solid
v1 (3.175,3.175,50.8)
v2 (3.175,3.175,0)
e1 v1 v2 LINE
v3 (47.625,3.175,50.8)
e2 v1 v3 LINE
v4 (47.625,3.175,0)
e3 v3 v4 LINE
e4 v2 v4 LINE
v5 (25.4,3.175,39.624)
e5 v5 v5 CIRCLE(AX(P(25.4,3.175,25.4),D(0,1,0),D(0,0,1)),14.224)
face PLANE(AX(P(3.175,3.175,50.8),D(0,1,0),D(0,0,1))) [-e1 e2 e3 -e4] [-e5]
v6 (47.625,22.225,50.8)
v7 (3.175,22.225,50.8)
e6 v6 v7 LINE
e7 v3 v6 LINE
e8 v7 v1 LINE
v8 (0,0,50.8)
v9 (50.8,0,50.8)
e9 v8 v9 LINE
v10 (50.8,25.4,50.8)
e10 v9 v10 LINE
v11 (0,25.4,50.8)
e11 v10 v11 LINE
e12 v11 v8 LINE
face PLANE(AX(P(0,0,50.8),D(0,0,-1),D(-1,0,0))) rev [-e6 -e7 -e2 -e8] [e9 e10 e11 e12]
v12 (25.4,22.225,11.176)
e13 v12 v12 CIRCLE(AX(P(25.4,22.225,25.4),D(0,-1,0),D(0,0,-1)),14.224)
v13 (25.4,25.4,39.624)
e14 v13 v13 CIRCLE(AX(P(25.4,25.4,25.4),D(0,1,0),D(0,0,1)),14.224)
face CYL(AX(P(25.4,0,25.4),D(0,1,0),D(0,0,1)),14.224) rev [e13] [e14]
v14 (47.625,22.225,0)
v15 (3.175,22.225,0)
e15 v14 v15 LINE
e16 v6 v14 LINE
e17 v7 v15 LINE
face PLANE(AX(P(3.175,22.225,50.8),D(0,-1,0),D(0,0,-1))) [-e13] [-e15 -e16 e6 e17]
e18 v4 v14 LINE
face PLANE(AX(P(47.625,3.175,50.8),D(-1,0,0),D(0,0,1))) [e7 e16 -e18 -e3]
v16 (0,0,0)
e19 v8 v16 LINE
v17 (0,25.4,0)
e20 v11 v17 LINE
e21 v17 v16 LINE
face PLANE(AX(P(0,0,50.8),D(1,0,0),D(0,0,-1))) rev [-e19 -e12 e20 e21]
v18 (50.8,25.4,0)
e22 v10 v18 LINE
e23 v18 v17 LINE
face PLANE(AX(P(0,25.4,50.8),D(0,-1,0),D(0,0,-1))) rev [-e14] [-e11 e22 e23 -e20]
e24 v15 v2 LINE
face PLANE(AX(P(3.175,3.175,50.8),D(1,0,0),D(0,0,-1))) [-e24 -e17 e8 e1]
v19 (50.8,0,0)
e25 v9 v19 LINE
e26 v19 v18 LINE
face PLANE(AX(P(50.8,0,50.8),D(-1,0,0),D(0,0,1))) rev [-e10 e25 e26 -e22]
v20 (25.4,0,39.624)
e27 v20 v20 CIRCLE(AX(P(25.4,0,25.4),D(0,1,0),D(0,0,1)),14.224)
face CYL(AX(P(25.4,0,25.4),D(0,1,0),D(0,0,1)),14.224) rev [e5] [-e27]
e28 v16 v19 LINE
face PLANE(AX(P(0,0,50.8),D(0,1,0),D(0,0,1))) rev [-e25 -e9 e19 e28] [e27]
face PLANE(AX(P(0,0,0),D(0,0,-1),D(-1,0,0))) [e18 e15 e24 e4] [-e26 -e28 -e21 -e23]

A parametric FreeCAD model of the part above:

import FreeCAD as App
import Part
import Sketcher
Q = App.Units.Quantity


def add_polygon(sketch, points):
    """Adds a closed chain of lines whose ends are joined by coincident constraints."""
    first, n = sketch.GeometryCount, len(points)
    for a, b in zip(points, points[1:] + points[:1]):
        sketch.addGeometry(Part.LineSegment(App.Vector(*a, 0), App.Vector(*b, 0)), False)
    for i in range(n):
        sketch.addConstraint(Sketcher.Constraint("Coincident", first + i, 2, first + (i + 1) % n, 1))

doc = App.newDocument("Part")
body = doc.addObject("PartDesign::Body", "Body")

# Sketch on XY plane
sketch1 = body.newObject("Sketcher::SketchObject", "Sketch")
sketch1.AttachmentSupport = (doc.getObject("XY_Plane"), [""])
sketch1.MapMode = "FlatFace"
add_polygon(sketch1, [(0, 25), (0, 0), (51, 0), (51, 25)])  # lines 0-3
add_polygon(sketch1, [(48, 3), (3, 3), (3, 22), (48, 22)])  # lines 4-7
sketch1.addConstraint([
    Sketcher.Constraint("Vertical", 0),
    Sketcher.Constraint("Horizontal", 1),
    Sketcher.Constraint("Vertical", 2),
    Sketcher.Constraint("Horizontal", 3),
    Sketcher.Constraint("Horizontal", 4),
    Sketcher.Constraint("Vertical", 5),
    Sketcher.Constraint("Horizontal", 6),
    Sketcher.Constraint("Vertical", 7),
    Sketcher.Constraint("Coincident", 0, 2, -1, 1),
    Sketcher.Constraint("DistanceX", 1, 1, 1, 2, Q("2 in")),
    Sketcher.Constraint("DistanceY", 0, 2, 0, 1, Q("1 in")),
    Sketcher.Constraint("DistanceX", 4, 2, 4, 1, Q("1.75 in")),
    Sketcher.Constraint("DistanceY", 5, 1, 5, 2, Q("0.75 in")),
    Sketcher.Constraint("DistanceX", -1, 1, 4, 2, Q("0.125 in")),
    Sketcher.Constraint("DistanceY", -1, 1, 4, 2, Q("0.125 in")),
])
pad1 = body.newObject("PartDesign::Pad", "Pad")
pad1.Profile = sketch1
pad1.Length = Q("2 in")

# Sketch on XZ plane
sketch2 = body.newObject("Sketcher::SketchObject", "Sketch001")
sketch2.AttachmentSupport = (doc.getObject("XZ_Plane"), [""])
sketch2.MapMode = "FlatFace"
sketch2.AttachmentOffset = App.Placement(App.Vector(0, 0, -1 * 25.4), App.Rotation())
sketch2.addGeometry(Part.Circle(App.Vector(25, 25, 0), App.Vector(0, 0, 1), 14), False)
sketch2.addConstraint([
    Sketcher.Constraint("Diameter", 0, Q("1.12 in")),
    Sketcher.Constraint("DistanceX", -1, 1, 0, 3, Q("1 in")),
    Sketcher.Constraint("DistanceY", -1, 1, 0, 3, Q("1 in")),
])
pocket1 = body.newObject("PartDesign::Pocket", "Pocket")
pocket1.Profile = sketch2
pocket1.Type = "ThroughAll"
pocket1.Reversed = True

doc.recompute()
